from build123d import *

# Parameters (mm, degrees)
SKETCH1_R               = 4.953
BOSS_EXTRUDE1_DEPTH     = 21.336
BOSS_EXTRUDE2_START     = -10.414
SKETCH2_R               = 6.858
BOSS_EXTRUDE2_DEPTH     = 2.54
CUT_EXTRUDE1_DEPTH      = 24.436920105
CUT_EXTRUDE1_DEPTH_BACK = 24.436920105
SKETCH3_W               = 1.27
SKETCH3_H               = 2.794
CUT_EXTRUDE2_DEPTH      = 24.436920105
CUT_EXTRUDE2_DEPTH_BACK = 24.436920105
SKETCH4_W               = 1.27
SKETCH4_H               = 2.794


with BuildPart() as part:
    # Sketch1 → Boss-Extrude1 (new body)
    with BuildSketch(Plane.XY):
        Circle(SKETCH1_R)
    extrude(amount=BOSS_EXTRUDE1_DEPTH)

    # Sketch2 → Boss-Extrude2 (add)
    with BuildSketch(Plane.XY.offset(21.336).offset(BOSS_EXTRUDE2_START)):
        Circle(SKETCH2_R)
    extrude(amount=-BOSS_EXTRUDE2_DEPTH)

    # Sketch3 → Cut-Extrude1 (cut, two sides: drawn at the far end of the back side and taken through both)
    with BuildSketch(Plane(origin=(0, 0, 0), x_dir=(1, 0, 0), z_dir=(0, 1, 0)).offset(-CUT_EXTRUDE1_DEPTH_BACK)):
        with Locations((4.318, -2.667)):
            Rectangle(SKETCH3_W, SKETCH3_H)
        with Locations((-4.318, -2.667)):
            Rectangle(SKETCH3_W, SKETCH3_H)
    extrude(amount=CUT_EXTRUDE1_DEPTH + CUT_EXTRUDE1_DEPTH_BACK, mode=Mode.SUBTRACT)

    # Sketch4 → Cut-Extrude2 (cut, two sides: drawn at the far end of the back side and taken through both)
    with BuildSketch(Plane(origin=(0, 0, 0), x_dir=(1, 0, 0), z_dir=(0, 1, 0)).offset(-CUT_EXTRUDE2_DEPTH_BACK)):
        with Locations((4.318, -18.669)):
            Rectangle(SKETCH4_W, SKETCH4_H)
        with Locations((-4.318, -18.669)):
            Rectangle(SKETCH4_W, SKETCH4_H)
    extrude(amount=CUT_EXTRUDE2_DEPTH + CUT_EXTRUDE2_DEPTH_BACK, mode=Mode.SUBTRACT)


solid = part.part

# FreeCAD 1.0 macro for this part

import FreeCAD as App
import Part
import Sketcher
from FreeCAD import Vector
Q = App.Units.Quantity

doc = App.newDocument("Part")
params = doc.addObject("Spreadsheet::Sheet", "Params")
for row, (alias, value) in enumerate([
    ("sketch1_diameter", "0.39 in"),
    ("pad1_length", "0.84 in"),
    ("sketch2_diameter", "0.54 in"),
    ("pad2_length", "0.1 in"),
    ("sketch3_width", "0.05 in"),
    ("sketch3_height", "0.11 in"),
    ("sketch4_width", "0.05 in"),
    ("sketch4_height", "0.11 in"),
], start=1):
    params.set(f"A{row}", alias)
    params.set(f"B{row}", "=" + value)
    params.setAlias(f"B{row}", alias)

body = doc.addObject("PartDesign::Body", "Body")

sketch1 = doc.addObject("Sketcher::SketchObject", "Sketch")
body.addObject(sketch1)
sketch1.AttachmentSupport = (doc.XY_Plane, [""])
sketch1.MapMode = "FlatFace"
sketch1.addGeometry(Part.Circle(Vector(0, 0, 0), Vector(0, 0, 1), 4.953), False)
sketch1.addConstraint([
    Sketcher.Constraint("Coincident", 0, 3, -1, 1),
    Sketcher.Constraint("Diameter", 0, Q("0.39 in")),
])
sketch1.setExpression("Constraints[1]", "Params.sketch1_diameter")
pad1 = doc.addObject("PartDesign::Pad", "Pad")
body.addObject(pad1)
pad1.Profile = sketch1
pad1.setExpression("Length", "Params.pad1_length")

sketch2 = doc.addObject("Sketcher::SketchObject", "Sketch001")
body.addObject(sketch2)
sketch2.AttachmentSupport = (doc.XY_Plane, [""])
sketch2.MapMode = "FlatFace"
sketch2.AttachmentOffset = App.Placement(Vector(0, 0, 0.43 * 25.4), App.Rotation())
sketch2.addGeometry(Part.Circle(Vector(0, 0, 0), Vector(0, 0, 1), 6.858), False)
sketch2.addConstraint([
    Sketcher.Constraint("Coincident", 0, 3, -1, 1),
    Sketcher.Constraint("Diameter", 0, Q("0.54 in")),
])
sketch2.setExpression("Constraints[1]", "Params.sketch2_diameter")
pad2 = doc.addObject("PartDesign::Pad", "Pad001")
body.addObject(pad2)
pad2.Profile = sketch2
pad2.setExpression("Length", "Params.pad2_length")
pad2.Reversed = True

sketch3 = doc.addObject("Sketcher::SketchObject", "Sketch002")
body.addObject(sketch3)
sketch3.AttachmentSupport = (doc.XZ_Plane, [""])
sketch3.MapMode = "FlatFace"
sketch3.addGeometry([
    Part.LineSegment(Vector(3.683, 1.27, 0), Vector(3.683, 4.064, 0)),
    Part.LineSegment(Vector(3.683, 4.064, 0), Vector(4.953, 4.064, 0)),
    Part.LineSegment(Vector(4.953, 4.064, 0), Vector(4.953, 1.27, 0)),
    Part.LineSegment(Vector(4.953, 1.27, 0), Vector(3.683, 1.27, 0)),
    Part.LineSegment(Vector(-4.953, 1.27, 0), Vector(-4.953, 4.064, 0)),
    Part.LineSegment(Vector(-4.953, 4.064, 0), Vector(-3.683, 4.064, 0)),
    Part.LineSegment(Vector(-3.683, 4.064, 0), Vector(-3.683, 1.27, 0)),
    Part.LineSegment(Vector(-3.683, 1.27, 0), Vector(-4.953, 1.27, 0)),
], False)
sketch3.addConstraint([
    Sketcher.Constraint("Coincident", 0, 2, 1, 1),
    Sketcher.Constraint("Coincident", 1, 2, 2, 1),
    Sketcher.Constraint("Coincident", 2, 2, 3, 1),
    Sketcher.Constraint("Coincident", 3, 2, 0, 1),
    Sketcher.Constraint("Coincident", 4, 2, 5, 1),
    Sketcher.Constraint("Coincident", 5, 2, 6, 1),
    Sketcher.Constraint("Coincident", 6, 2, 7, 1),
    Sketcher.Constraint("Coincident", 7, 2, 4, 1),
    Sketcher.Constraint("Vertical", 0),
    Sketcher.Constraint("Horizontal", 1),
    Sketcher.Constraint("Vertical", 2),
    Sketcher.Constraint("Horizontal", 3),
    Sketcher.Constraint("Vertical", 4),
    Sketcher.Constraint("Horizontal", 5),
    Sketcher.Constraint("Vertical", 6),
    Sketcher.Constraint("Horizontal", 7),
    Sketcher.Constraint("Symmetric", 1, 2, 4, 2, -2),
    Sketcher.Constraint("Symmetric", 3, 2, 6, 2, -2),
    Sketcher.Constraint("DistanceX", 1, 1, 1, 2, Q("0.05 in")),
    Sketcher.Constraint("DistanceY", 0, 1, 0, 2, Q("0.11 in")),
    Sketcher.Constraint("DistanceY", -1, 1, 0, 2, Q("0.16 in")),
    Sketcher.Constraint("DistanceX", 4, 2, 0, 2, Q("0.34 in")),
])
sketch3.setExpression("Constraints[18]", "Params.sketch3_width")
sketch3.setExpression("Constraints[19]", "Params.sketch3_height")
pocket1 = doc.addObject("PartDesign::Pocket", "Pocket")
body.addObject(pocket1)
pocket1.Profile = sketch3
pocket1.Type = "ThroughAll"
pocket1.Midplane = True

sketch4 = doc.addObject("Sketcher::SketchObject", "Sketch003")
body.addObject(sketch4)
sketch4.AttachmentSupport = (doc.XZ_Plane, [""])
sketch4.MapMode = "FlatFace"
sketch4.addGeometry([
    Part.LineSegment(Vector(3.683, 17.272, 0), Vector(3.683, 20.066, 0)),
    Part.LineSegment(Vector(3.683, 20.066, 0), Vector(4.953, 20.066, 0)),
    Part.LineSegment(Vector(4.953, 20.066, 0), Vector(4.953, 17.272, 0)),
    Part.LineSegment(Vector(4.953, 17.272, 0), Vector(3.683, 17.272, 0)),
    Part.LineSegment(Vector(-4.953, 17.272, 0), Vector(-4.953, 20.066, 0)),
    Part.LineSegment(Vector(-4.953, 20.066, 0), Vector(-3.683, 20.066, 0)),
    Part.LineSegment(Vector(-3.683, 20.066, 0), Vector(-3.683, 17.272, 0)),
    Part.LineSegment(Vector(-3.683, 17.272, 0), Vector(-4.953, 17.272, 0)),
], False)
sketch4.addConstraint([
    Sketcher.Constraint("Coincident", 0, 2, 1, 1),
    Sketcher.Constraint("Coincident", 1, 2, 2, 1),
    Sketcher.Constraint("Coincident", 2, 2, 3, 1),
    Sketcher.Constraint("Coincident", 3, 2, 0, 1),
    Sketcher.Constraint("Coincident", 4, 2, 5, 1),
    Sketcher.Constraint("Coincident", 5, 2, 6, 1),
    Sketcher.Constraint("Coincident", 6, 2, 7, 1),
    Sketcher.Constraint("Coincident", 7, 2, 4, 1),
    Sketcher.Constraint("Vertical", 0),
    Sketcher.Constraint("Horizontal", 1),
    Sketcher.Constraint("Vertical", 2),
    Sketcher.Constraint("Horizontal", 3),
    Sketcher.Constraint("Vertical", 4),
    Sketcher.Constraint("Horizontal", 5),
    Sketcher.Constraint("Vertical", 6),
    Sketcher.Constraint("Horizontal", 7),
    Sketcher.Constraint("Symmetric", 1, 2, 4, 2, -2),
    Sketcher.Constraint("Symmetric", 3, 2, 6, 2, -2),
    Sketcher.Constraint("DistanceX", 1, 1, 1, 2, Q("0.05 in")),
    Sketcher.Constraint("DistanceY", 0, 1, 0, 2, Q("0.11 in")),
    Sketcher.Constraint("DistanceY", -1, 1, 0, 2, Q("0.79 in")),
    Sketcher.Constraint("DistanceX", 4, 2, 0, 2, Q("0.34 in")),
])
sketch4.setExpression("Constraints[18]", "Params.sketch4_width")
sketch4.setExpression("Constraints[19]", "Params.sketch4_height")
pocket2 = doc.addObject("PartDesign::Pocket", "Pocket001")
body.addObject(pocket2)
pocket2.Profile = sketch4
pocket2.Type = "ThroughAll"
pocket2.Midplane = True

doc.recompute()
